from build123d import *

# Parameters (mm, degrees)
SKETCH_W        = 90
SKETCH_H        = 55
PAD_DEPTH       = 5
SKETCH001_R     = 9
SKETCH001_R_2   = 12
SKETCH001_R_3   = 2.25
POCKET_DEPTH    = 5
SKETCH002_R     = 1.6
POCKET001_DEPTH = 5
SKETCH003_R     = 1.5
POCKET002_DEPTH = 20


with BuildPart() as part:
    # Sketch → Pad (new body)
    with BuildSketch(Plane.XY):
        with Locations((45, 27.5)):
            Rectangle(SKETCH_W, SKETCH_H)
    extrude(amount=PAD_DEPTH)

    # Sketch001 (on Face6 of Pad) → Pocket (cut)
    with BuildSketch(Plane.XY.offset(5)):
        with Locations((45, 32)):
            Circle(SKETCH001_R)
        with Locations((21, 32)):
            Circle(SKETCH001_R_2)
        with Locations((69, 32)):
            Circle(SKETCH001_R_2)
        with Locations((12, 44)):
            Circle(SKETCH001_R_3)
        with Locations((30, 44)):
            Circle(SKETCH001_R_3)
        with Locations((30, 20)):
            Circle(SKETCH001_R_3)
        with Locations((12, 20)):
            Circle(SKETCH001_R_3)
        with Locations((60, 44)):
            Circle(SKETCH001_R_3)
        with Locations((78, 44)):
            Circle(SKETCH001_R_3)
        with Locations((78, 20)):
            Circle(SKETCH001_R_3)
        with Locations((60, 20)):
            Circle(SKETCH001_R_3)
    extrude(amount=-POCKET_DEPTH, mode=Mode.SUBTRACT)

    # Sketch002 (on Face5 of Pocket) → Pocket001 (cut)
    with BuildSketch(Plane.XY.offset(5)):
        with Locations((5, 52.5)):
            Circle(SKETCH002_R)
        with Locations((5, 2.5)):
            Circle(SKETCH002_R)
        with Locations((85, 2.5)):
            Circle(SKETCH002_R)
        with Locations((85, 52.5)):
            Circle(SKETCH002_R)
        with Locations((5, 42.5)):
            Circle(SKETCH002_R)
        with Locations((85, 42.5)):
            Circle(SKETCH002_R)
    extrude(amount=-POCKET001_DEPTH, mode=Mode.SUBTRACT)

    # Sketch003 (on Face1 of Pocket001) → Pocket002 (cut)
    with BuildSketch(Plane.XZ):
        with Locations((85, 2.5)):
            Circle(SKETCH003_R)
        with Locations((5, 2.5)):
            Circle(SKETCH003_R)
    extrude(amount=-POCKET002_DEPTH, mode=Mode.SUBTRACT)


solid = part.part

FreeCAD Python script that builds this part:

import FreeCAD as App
import Part
import Sketcher

V = App.Vector
Q = App.Units.Quantity

doc = App.newDocument("Part")
body = doc.addObject("PartDesign::Body", "Body")

# Sketch on XY plane
sketch1 = body.newObject("Sketcher::SketchObject", "Sketch")
sketch1.AttachmentSupport = (doc.getObject("XY_Plane"), [""])
sketch1.MapMode = "FlatFace"
sketch1.addGeometry([
    Part.LineSegment(V(0, 55, 0), V(0, 0, 0)),
    Part.LineSegment(V(0, 0, 0), V(90, 0, 0)),
    Part.LineSegment(V(90, 0, 0), V(90, 55, 0)),
    Part.LineSegment(V(90, 55, 0), V(0, 55, 0)),
], False)
sketch1.addConstraint([
    Sketcher.Constraint("Coincident", 0, 2, 1, 1),
    Sketcher.Constraint("Coincident", 1, 2, 2, 1),
    Sketcher.Constraint("Coincident", 2, 2, 3, 1),
    Sketcher.Constraint("Coincident", 3, 2, 0, 1),
    Sketcher.Constraint("Vertical", 0),
    Sketcher.Constraint("Horizontal", 1),
    Sketcher.Constraint("Vertical", 2),
    Sketcher.Constraint("Horizontal", 3),
    Sketcher.Constraint("Coincident", 0, 2, -1, 1),
    Sketcher.Constraint("DistanceX", 1, 1, 1, 2, Q("90 mm")),
    Sketcher.Constraint("DistanceY", 0, 2, 0, 1, Q("55 mm")),
])
pad1 = body.newObject("PartDesign::Pad", "Pad")
pad1.Profile = sketch1
pad1.Length = 5

# Sketch on XY plane
sketch2 = body.newObject("Sketcher::SketchObject", "Sketch001")
sketch2.AttachmentSupport = (doc.getObject("XY_Plane"), [""])
sketch2.MapMode = "FlatFace"
sketch2.AttachmentOffset = App.Placement(V(0, 0, 5), App.Rotation())
sketch2.addGeometry([
    Part.Circle(V(45, 32, 0), V(0, 0, 1), 9),  # 0
    Part.Circle(V(21, 32, 0), V(0, 0, 1), 12),  # 1
    Part.Circle(V(69, 32, 0), V(0, 0, 1), 12),  # 2
    Part.Circle(V(12, 44, 0), V(0, 0, 1), 2.25),  # 3
    Part.Circle(V(30, 44, 0), V(0, 0, 1), 2.25),  # 4
    Part.Circle(V(30, 20, 0), V(0, 0, 1), 2.25),  # 5
    Part.Circle(V(12, 20, 0), V(0, 0, 1), 2.25),  # 6
    Part.Circle(V(60, 44, 0), V(0, 0, 1), 2.25),  # 7
    Part.Circle(V(78, 44, 0), V(0, 0, 1), 2.25),  # 8
    Part.Circle(V(78, 20, 0), V(0, 0, 1), 2.25),  # 9
    Part.Circle(V(60, 20, 0), V(0, 0, 1), 2.25),  # 10
], False)
sketch2.addConstraint([
    Sketcher.Constraint("Equal", 1, 2),
    Sketcher.Constraint("Equal", 3, 4),
    Sketcher.Constraint("Equal", 4, 5),
    Sketcher.Constraint("Equal", 5, 6),
    Sketcher.Constraint("Equal", 6, 7),
    Sketcher.Constraint("Equal", 7, 8),
    Sketcher.Constraint("Equal", 8, 9),
    Sketcher.Constraint("Equal", 9, 10),
    Sketcher.Constraint("Horizontal", 0, 3, 1, 3),
    Sketcher.Constraint("Horizontal", 1, 3, 2, 3),
    Sketcher.Constraint("Horizontal", 3, 3, 4, 3),
    Sketcher.Constraint("Horizontal", 5, 3, 6, 3),
    Sketcher.Constraint("Horizontal", 4, 3, 7, 3),
    Sketcher.Constraint("Horizontal", 7, 3, 8, 3),
    Sketcher.Constraint("Horizontal", 6, 3, 9, 3),
    Sketcher.Constraint("Horizontal", 9, 3, 10, 3),
    Sketcher.Constraint("Vertical", 4, 3, 5, 3),
    Sketcher.Constraint("Vertical", 3, 3, 6, 3),
    Sketcher.Constraint("Vertical", 8, 3, 9, 3),
    Sketcher.Constraint("Vertical", 7, 3, 10, 3),
    Sketcher.Constraint("Diameter", 0, Q("18 mm")),
    Sketcher.Constraint("Diameter", 1, Q("24 mm")),
    Sketcher.Constraint("Diameter", 3, Q("4.5 mm")),
    Sketcher.Constraint("DistanceX", -1, 1, 0, 3, Q("45 mm")),
    Sketcher.Constraint("DistanceY", -1, 1, 0, 3, Q("32 mm")),
    Sketcher.Constraint("DistanceX", -1, 1, 1, 3, Q("21 mm")),
    Sketcher.Constraint("DistanceX", -1, 1, 2, 3, Q("69 mm")),
    Sketcher.Constraint("DistanceX", -1, 1, 3, 3, Q("12 mm")),
    Sketcher.Constraint("DistanceY", -1, 1, 3, 3, Q("44 mm")),
    Sketcher.Constraint("DistanceX", -1, 1, 4, 3, Q("30 mm")),
    Sketcher.Constraint("DistanceY", -1, 1, 5, 3, Q("20 mm")),
    Sketcher.Constraint("DistanceX", -1, 1, 7, 3, Q("60 mm")),
    Sketcher.Constraint("DistanceX", -1, 1, 8, 3, Q("78 mm")),
])
pocket1 = body.newObject("PartDesign::Pocket", "Pocket")
pocket1.Profile = sketch2
pocket1.Length = 5

# Sketch on XY plane
sketch3 = body.newObject("Sketcher::SketchObject", "Sketch002")
sketch3.AttachmentSupport = (doc.getObject("XY_Plane"), [""])
sketch3.MapMode = "FlatFace"
sketch3.AttachmentOffset = App.Placement(V(0, 0, 5), App.Rotation())
sketch3.addGeometry([
    Part.Circle(V(5, 52.5, 0), V(0, 0, 1), 1.6),  # 0
    Part.Circle(V(5, 2.5, 0), V(0, 0, 1), 1.6),  # 1
    Part.Circle(V(85, 2.5, 0), V(0, 0, 1), 1.6),  # 2
    Part.Circle(V(85, 52.5, 0), V(0, 0, 1), 1.6),  # 3
    Part.Circle(V(5, 42.5, 0), V(0, 0, 1), 1.6),  # 4
    Part.Circle(V(85, 42.5, 0), V(0, 0, 1), 1.6),  # 5
], False)
sketch3.addConstraint([
    Sketcher.Constraint("Equal", 0, 1),
    Sketcher.Constraint("Equal", 1, 2),
    Sketcher.Constraint("Equal", 2, 3),
    Sketcher.Constraint("Equal", 3, 4),
    Sketcher.Constraint("Equal", 4, 5),
    Sketcher.Constraint("Horizontal", 1, 3, 2, 3),
    Sketcher.Constraint("Horizontal", 0, 3, 3, 3),
    Sketcher.Constraint("Horizontal", 4, 3, 5, 3),
    Sketcher.Constraint("Vertical", 0, 3, 1, 3),
    Sketcher.Constraint("Vertical", 2, 3, 3, 3),
    Sketcher.Constraint("Vertical", 1, 3, 4, 3),
    Sketcher.Constraint("Vertical", 3, 3, 5, 3),
    Sketcher.Constraint("Diameter", 0, Q("3.2 mm")),
    Sketcher.Constraint("DistanceX", -1, 1, 0, 3, Q("5 mm")),
    Sketcher.Constraint("DistanceX", -1, 1, 2, 3, Q("85 mm")),
    Sketcher.Constraint("DistanceY", 1, 3, 0, 3, Q("50 mm")),
    Sketcher.Constraint("DistanceY", 4, 3, 0, 3, Q("10 mm")),
    Sketcher.Constraint("DistanceY", -1, 1, 0, 3, Q("52.5 mm")),
])
pocket2 = body.newObject("PartDesign::Pocket", "Pocket001")
pocket2.Profile = sketch3
pocket2.Length = 5

# Sketch on XZ plane
sketch4 = body.newObject("Sketcher::SketchObject", "Sketch003")
sketch4.AttachmentSupport = (doc.getObject("XZ_Plane"), [""])
sketch4.MapMode = "FlatFace"
sketch4.addGeometry([
    Part.Circle(V(85, 2.5, 0), V(0, 0, 1), 1.5),
    Part.Circle(V(5, 2.5, 0), V(0, 0, 1), 1.5),
], False)
sketch4.addConstraint([
    Sketcher.Constraint("Equal", 0, 1),
    Sketcher.Constraint("Horizontal", 0, 3, 1, 3),
    Sketcher.Constraint("Diameter", 0, Q("3 mm")),
    Sketcher.Constraint("DistanceX", -1, 1, 0, 3, Q("85 mm")),
    Sketcher.Constraint("DistanceX", -1, 1, 1, 3, Q("5 mm")),
    Sketcher.Constraint("DistanceY", -1, 1, 0, 3, Q("2.5 mm")),
])
pocket3 = body.newObject("PartDesign::Pocket", "Pocket002")
pocket3.Profile = sketch4
pocket3.Length = 20

doc.recompute()
